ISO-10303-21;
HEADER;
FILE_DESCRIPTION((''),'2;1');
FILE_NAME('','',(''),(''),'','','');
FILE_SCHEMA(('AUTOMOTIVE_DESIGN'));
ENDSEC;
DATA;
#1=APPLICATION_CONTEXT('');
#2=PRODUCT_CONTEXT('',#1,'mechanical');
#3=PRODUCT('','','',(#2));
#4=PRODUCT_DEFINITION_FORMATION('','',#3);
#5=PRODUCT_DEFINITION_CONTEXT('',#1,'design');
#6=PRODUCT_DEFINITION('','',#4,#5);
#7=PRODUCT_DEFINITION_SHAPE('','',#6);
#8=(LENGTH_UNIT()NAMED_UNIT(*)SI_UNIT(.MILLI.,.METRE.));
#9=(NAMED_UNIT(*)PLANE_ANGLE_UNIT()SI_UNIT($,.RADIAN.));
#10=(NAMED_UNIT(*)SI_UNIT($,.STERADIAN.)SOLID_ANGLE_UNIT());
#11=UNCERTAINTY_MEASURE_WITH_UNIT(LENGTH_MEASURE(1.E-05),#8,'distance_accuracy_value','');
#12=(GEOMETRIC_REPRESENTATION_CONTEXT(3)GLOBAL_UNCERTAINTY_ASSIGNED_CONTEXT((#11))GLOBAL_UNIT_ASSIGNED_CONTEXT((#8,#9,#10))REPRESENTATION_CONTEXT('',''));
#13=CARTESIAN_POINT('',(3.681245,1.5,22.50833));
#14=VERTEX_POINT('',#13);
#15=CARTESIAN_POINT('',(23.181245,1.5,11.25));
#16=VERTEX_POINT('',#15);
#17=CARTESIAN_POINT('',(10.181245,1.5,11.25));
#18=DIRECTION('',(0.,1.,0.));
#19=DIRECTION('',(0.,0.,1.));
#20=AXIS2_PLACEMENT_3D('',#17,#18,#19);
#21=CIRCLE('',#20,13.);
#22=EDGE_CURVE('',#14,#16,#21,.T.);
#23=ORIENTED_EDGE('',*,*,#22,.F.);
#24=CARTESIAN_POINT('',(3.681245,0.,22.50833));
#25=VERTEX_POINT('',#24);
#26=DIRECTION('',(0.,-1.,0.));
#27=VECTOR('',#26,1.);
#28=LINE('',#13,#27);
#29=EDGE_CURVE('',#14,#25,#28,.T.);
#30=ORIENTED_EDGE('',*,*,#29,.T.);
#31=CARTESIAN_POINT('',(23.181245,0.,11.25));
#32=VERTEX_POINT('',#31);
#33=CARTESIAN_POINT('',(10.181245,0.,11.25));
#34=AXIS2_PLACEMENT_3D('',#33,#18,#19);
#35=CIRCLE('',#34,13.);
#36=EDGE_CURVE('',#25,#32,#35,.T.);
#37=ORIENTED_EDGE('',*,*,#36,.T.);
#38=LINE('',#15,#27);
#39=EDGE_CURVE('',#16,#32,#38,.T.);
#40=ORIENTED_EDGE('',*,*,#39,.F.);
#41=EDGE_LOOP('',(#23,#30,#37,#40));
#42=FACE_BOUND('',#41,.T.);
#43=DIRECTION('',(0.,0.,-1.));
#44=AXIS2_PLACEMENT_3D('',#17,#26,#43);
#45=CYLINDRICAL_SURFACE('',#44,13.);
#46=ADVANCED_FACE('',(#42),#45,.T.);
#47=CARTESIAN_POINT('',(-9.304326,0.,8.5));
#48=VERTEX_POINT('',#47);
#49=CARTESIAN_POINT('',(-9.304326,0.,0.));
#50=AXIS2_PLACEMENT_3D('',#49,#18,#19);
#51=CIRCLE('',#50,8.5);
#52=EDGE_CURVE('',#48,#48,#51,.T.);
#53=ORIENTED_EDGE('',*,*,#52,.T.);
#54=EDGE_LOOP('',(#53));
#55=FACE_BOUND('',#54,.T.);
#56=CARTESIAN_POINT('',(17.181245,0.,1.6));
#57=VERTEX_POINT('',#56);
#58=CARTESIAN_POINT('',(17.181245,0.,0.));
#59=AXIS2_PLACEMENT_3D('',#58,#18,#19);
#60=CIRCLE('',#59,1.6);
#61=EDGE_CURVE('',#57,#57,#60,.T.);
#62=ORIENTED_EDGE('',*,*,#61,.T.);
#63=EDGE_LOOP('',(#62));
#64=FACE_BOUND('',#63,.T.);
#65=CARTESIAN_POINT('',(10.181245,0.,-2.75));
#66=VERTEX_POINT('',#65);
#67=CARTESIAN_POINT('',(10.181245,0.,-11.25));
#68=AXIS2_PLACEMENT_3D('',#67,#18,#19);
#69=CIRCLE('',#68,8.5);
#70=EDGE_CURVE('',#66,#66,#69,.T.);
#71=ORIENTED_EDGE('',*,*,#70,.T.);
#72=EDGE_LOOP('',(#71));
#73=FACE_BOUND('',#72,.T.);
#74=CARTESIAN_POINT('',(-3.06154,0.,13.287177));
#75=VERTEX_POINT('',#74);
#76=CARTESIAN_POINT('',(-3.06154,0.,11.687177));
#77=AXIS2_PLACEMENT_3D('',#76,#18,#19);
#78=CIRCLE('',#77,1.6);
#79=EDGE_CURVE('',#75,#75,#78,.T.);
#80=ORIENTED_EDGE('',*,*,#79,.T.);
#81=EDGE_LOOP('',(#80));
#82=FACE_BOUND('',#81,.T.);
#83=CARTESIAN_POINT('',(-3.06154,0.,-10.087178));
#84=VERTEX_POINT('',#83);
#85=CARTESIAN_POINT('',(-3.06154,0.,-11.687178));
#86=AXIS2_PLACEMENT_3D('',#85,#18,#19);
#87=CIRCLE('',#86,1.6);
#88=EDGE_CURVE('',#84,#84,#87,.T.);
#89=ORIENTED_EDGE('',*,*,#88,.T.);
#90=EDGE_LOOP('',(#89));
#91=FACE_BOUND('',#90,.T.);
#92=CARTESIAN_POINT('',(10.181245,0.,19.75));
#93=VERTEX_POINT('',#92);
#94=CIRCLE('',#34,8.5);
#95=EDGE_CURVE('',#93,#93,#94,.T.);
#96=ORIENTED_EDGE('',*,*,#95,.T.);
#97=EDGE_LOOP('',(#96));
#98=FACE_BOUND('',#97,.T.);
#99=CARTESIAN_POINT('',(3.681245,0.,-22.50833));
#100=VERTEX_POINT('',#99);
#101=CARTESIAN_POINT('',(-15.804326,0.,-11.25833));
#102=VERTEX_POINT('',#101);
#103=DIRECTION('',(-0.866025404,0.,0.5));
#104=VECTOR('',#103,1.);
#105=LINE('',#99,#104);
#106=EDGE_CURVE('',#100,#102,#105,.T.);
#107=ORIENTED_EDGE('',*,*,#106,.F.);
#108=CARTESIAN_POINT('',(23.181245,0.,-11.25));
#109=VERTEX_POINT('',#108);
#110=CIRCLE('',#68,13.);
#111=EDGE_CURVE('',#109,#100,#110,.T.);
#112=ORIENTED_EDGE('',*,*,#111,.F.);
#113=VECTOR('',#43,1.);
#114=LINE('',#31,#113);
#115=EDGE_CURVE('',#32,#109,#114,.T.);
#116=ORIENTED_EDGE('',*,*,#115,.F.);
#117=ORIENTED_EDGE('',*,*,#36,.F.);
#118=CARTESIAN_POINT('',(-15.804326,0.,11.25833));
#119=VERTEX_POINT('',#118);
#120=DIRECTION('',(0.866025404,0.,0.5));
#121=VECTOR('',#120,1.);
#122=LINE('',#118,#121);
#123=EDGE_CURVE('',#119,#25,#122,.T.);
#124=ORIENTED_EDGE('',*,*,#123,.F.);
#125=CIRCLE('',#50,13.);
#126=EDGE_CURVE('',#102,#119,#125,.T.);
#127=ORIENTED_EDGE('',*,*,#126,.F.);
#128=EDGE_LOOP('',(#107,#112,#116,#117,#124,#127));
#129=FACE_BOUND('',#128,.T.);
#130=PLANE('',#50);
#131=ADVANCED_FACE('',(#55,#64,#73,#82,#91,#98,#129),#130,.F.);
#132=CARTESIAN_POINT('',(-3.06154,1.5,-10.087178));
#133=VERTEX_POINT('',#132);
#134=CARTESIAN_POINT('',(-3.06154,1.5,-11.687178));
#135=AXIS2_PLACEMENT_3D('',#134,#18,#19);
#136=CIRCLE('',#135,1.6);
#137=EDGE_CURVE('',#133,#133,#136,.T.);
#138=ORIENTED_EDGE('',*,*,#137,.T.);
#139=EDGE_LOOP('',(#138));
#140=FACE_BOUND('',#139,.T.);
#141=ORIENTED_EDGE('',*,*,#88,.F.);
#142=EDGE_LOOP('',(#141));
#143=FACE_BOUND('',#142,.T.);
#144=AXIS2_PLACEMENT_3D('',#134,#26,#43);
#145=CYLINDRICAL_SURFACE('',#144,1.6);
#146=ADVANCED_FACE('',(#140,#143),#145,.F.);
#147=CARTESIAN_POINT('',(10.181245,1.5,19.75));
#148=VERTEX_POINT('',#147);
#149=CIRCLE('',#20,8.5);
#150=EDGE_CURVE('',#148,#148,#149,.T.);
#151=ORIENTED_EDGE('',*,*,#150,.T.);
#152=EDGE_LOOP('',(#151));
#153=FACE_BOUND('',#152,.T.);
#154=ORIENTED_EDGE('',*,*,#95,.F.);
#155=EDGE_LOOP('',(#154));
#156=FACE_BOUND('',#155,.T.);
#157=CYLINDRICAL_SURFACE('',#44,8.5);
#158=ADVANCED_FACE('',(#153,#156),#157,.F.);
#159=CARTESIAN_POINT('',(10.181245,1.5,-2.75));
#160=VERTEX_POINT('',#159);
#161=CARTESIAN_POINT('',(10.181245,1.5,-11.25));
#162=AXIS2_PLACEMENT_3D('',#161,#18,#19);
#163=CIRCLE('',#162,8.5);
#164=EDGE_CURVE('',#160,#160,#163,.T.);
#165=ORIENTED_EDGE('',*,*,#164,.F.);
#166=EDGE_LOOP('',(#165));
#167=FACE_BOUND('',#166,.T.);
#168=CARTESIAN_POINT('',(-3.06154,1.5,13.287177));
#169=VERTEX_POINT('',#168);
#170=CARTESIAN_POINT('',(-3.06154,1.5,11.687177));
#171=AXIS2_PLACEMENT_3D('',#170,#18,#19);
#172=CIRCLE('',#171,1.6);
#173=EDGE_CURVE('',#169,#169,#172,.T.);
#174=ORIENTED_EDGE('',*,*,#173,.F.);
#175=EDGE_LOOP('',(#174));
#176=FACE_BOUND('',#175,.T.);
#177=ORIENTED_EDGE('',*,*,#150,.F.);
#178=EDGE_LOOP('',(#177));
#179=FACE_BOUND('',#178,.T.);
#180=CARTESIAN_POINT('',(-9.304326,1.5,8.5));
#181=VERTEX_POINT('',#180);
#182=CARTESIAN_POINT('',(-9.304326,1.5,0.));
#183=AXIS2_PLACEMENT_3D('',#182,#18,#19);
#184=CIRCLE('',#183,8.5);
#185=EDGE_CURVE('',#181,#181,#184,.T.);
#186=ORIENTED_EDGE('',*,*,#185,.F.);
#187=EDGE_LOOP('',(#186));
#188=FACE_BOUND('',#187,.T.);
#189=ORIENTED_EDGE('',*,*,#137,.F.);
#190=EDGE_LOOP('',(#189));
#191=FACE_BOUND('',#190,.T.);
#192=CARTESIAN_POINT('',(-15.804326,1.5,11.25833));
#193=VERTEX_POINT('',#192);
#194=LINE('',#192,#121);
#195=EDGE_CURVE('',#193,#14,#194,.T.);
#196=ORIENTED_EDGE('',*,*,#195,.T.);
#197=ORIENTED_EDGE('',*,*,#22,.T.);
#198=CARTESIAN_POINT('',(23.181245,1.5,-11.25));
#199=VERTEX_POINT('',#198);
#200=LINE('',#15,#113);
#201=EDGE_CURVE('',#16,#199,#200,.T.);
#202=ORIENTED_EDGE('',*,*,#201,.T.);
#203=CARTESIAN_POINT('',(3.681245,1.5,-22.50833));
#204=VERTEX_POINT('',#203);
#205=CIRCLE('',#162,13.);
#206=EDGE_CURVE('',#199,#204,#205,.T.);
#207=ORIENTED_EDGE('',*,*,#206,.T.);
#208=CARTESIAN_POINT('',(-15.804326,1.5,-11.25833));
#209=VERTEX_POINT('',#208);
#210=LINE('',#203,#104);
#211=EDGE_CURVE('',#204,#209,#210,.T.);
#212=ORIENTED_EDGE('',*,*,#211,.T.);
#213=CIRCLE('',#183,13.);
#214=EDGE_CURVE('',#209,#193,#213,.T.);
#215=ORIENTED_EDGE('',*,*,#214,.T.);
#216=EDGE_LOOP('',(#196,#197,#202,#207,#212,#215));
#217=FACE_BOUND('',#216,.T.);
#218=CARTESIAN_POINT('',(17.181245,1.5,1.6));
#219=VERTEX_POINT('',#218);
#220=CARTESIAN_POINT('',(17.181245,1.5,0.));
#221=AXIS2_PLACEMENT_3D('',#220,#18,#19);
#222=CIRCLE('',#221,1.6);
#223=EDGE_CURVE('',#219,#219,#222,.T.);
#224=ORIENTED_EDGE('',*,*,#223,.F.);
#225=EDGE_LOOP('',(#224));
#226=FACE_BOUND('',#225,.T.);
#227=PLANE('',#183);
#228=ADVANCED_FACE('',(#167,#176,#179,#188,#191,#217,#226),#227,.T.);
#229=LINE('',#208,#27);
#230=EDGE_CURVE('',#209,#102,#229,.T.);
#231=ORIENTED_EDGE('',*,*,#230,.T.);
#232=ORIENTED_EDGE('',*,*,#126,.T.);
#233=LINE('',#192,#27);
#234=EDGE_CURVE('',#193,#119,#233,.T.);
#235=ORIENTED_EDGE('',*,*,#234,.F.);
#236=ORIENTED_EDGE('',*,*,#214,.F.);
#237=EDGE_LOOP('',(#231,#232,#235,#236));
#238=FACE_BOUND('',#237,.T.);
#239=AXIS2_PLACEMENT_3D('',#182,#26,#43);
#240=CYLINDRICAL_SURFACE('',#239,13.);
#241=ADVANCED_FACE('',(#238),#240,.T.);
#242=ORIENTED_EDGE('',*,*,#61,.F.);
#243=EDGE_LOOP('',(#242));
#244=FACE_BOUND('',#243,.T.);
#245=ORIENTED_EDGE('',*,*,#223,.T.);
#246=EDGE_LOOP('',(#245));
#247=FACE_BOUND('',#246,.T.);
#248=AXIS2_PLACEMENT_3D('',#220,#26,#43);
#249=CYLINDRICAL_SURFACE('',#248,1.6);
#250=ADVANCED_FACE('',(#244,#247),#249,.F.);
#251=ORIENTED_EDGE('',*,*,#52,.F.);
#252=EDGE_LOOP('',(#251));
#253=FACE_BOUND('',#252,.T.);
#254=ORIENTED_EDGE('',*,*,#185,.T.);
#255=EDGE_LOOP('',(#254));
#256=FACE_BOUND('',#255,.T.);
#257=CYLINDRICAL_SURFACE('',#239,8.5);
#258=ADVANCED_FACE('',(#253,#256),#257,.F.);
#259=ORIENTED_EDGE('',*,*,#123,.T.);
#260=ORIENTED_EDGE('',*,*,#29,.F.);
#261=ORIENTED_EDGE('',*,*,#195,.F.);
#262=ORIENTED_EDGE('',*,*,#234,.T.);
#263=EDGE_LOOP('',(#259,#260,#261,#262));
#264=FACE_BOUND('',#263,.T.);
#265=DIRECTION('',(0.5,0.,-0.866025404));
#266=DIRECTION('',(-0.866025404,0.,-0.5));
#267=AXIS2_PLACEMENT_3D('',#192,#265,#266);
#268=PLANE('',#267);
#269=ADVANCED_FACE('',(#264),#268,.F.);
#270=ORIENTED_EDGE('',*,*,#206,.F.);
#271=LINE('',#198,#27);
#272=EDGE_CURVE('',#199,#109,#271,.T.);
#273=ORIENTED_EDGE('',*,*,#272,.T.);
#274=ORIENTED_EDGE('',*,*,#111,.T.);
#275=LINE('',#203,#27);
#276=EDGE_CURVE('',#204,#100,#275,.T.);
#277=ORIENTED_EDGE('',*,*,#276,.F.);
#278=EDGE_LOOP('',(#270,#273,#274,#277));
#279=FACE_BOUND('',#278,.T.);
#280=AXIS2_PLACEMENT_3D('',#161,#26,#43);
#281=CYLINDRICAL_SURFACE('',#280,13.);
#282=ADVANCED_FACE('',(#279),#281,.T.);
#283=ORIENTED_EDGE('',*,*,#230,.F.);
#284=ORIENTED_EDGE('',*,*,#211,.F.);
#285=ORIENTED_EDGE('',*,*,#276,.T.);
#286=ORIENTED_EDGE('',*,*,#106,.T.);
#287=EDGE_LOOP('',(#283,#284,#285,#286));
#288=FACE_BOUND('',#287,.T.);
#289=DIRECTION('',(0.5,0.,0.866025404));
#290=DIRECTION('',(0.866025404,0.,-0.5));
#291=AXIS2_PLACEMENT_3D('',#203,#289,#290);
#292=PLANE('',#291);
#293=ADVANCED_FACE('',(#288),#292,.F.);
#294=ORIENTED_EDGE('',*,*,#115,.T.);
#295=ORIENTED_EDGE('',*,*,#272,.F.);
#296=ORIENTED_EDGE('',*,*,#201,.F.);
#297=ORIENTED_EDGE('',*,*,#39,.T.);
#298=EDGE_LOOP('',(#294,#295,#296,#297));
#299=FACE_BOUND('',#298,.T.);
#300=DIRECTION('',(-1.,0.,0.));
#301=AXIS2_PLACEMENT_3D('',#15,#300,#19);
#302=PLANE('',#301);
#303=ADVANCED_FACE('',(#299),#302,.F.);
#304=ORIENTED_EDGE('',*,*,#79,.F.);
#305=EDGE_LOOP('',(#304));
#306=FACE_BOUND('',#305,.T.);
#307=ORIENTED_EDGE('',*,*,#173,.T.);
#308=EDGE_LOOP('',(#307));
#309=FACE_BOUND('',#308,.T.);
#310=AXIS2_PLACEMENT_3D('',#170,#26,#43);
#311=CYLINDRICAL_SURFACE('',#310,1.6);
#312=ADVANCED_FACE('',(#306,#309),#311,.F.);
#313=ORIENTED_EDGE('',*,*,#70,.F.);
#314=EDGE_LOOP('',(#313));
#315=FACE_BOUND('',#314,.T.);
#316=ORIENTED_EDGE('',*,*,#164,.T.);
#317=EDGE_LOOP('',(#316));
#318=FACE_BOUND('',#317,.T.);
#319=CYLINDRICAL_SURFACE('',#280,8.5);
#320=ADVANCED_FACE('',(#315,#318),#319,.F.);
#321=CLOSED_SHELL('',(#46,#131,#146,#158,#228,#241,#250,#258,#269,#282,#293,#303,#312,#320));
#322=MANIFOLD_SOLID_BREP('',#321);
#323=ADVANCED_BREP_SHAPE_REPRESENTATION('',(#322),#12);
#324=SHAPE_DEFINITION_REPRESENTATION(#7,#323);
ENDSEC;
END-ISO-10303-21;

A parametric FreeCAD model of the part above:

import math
import FreeCAD as App
import Part
import Sketcher
from FreeCAD import Vector
Q = App.Units.Quantity

doc = App.newDocument("Part")
body = doc.addObject("PartDesign::Body", "Body")

sketch1 = body.newObject("Sketcher::SketchObject", "Sketch")
sketch1.AttachmentSupport = (doc.getObject("XZ_Plane"), [""])
sketch1.MapMode = "FlatFace"
sketch1.addGeometry([
    Part.LineSegment(Vector(-15.8, 11.3, 0), Vector(3.7, 22.5, 0)),
    Part.ArcOfCircle(Part.Circle(Vector(10.2, 11.2, 0), Vector(0, 0, 1), 13), math.radians(0), math.radians(120)),
    Part.LineSegment(Vector(23.2, 11.2, 0), Vector(23.2, -11.2, 0)),
    Part.ArcOfCircle(Part.Circle(Vector(10.2, -11.2, 0), Vector(0, 0, 1), 13), math.radians(-120), math.radians(0)),
    Part.LineSegment(Vector(3.7, -22.5, 0), Vector(-15.8, -11.3, 0)),
    Part.ArcOfCircle(Part.Circle(Vector(-9.3, 0, 0), Vector(0, 0, 1), 13), math.radians(120), math.radians(240)),
    Part.Circle(Vector(-3.1, 11.7, 0), Vector(0, 0, 1), 1.6),
    Part.Circle(Vector(10.2, 11.2, 0), Vector(0, 0, 1), 8.5),
    Part.Circle(Vector(-9.3, 0, 0), Vector(0, 0, 1), 8.5),
    Part.Circle(Vector(-3.1, -11.7, 0), Vector(0, 0, 1), 1.6),
    Part.Circle(Vector(17.2, 0, 0), Vector(0, 0, 1), 1.6),
    Part.Circle(Vector(10.2, -11.2, 0), Vector(0, 0, 1), 8.5),
], False)
sketch1.addConstraint([
    Sketcher.Constraint("Tangent", 0, 2, 1, 2),
    Sketcher.Constraint("Tangent", 1, 1, 2, 1),
    Sketcher.Constraint("Tangent", 2, 2, 3, 2),
    Sketcher.Constraint("Tangent", 3, 1, 4, 1),
    Sketcher.Constraint("Tangent", 4, 2, 5, 2),
    Sketcher.Constraint("Tangent", 5, 1, 0, 1),
    Sketcher.Constraint("Vertical", 2),
    Sketcher.Constraint("Coincident", 7, 3, 1, 3),
    Sketcher.Constraint("Coincident", 8, 3, 5, 3),
    Sketcher.Constraint("Coincident", 11, 3, 3, 3),
    Sketcher.Constraint("Equal", 1, 3),
    Sketcher.Constraint("Equal", 3, 5),
    Sketcher.Constraint("Equal", 7, 8),
    Sketcher.Constraint("Equal", 6, 9),
    Sketcher.Constraint("Equal", 9, 10),
    Sketcher.Constraint("Equal", 8, 11),
    Sketcher.Constraint("Symmetric", 6, 3, 9, 3, -1),
    Sketcher.Constraint("Symmetric", 0, 2, 3, 1, -1),
    Sketcher.Constraint("PointOnObject", 10, 3, -1),
    Sketcher.Constraint("Diameter", 7, 17.0),
    Sketcher.Constraint("Radius", 1, 13.0),
    Sketcher.Constraint("Diameter", 6, 3.2),
    Sketcher.Constraint("Angle", 0, Q("30 deg")),
    Sketcher.Constraint("DistanceY", 2, 2, 2, 1, 22.5),
    Sketcher.Constraint("DistanceX", 1, 3, 10, 3, 7.0),
    Sketcher.Constraint("DistanceX", 6, 3, -1, 1, 3.06154),
    Sketcher.Constraint("DistanceX", -1, 1, 1, 3, 10.181245),
    Sketcher.Constraint("DistanceY", -1, 1, 6, 3, 11.687177),
])
pad1 = body.newObject("PartDesign::Pad", "Pad")
pad1.Profile = sketch1
pad1.Length = 1.5
pad1.Reversed = True

doc.recompute()
